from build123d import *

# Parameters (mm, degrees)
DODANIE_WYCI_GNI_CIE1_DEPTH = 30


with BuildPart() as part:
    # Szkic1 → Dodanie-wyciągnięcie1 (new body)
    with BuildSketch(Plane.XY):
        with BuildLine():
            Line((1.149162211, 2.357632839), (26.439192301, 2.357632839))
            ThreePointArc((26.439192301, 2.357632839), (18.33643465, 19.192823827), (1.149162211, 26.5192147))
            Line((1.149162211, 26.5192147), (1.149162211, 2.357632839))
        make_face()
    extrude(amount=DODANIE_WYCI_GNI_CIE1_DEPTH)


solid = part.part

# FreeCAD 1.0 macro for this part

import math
import FreeCAD as App
import Part
import Sketcher
from FreeCAD import Vector

doc = App.newDocument("Part")
params = doc.addObject("Spreadsheet::Sheet", "Params")
for row, (alias, value) in enumerate([
    ("pad1_length", "30 mm"),
], start=1):
    params.set(f"A{row}", alias)
    params.set(f"B{row}", "=" + value)
    params.setAlias(f"B{row}", alias)

body = doc.addObject("PartDesign::Body", "Body")

sketch1 = body.newObject("Sketcher::SketchObject", "Sketch")
sketch1.AttachmentSupport = (doc.getObject("XY_Plane"), [""])
sketch1.MapMode = "FlatFace"
sketch1.addGeometry([
    Part.LineSegment(Vector(1, 2, 0), Vector(26, 2, 0)),
    Part.ArcOfCircle(Part.Circle(Vector(0, 0, 0), Vector(0, 0, 1), 27), math.radians(5), math.radians(88)),
    Part.LineSegment(Vector(1, 27, 0), Vector(1, 2, 0)),
], False)
sketch1.addConstraint([
    Sketcher.Constraint("Coincident", 0, 2, 1, 1),
    Sketcher.Constraint("Coincident", 1, 2, 2, 1),
    Sketcher.Constraint("Coincident", 2, 2, 0, 1),
    Sketcher.Constraint("Horizontal", 0),
    Sketcher.Constraint("Vertical", 2),
    Sketcher.Constraint("Coincident", 1, 3, -1, 1),
    Sketcher.Constraint("Radius", 1, 26.544101),
    Sketcher.Constraint("DistanceX", 0, 1, 0, 2, 25.29003),
    Sketcher.Constraint("DistanceY", 2, 2, 2, 1, 24.161582),
])
pad1 = body.newObject("PartDesign::Pad", "Pad")
pad1.Profile = sketch1
pad1.setExpression("Length", "Params.pad1_length")

doc.recompute()
